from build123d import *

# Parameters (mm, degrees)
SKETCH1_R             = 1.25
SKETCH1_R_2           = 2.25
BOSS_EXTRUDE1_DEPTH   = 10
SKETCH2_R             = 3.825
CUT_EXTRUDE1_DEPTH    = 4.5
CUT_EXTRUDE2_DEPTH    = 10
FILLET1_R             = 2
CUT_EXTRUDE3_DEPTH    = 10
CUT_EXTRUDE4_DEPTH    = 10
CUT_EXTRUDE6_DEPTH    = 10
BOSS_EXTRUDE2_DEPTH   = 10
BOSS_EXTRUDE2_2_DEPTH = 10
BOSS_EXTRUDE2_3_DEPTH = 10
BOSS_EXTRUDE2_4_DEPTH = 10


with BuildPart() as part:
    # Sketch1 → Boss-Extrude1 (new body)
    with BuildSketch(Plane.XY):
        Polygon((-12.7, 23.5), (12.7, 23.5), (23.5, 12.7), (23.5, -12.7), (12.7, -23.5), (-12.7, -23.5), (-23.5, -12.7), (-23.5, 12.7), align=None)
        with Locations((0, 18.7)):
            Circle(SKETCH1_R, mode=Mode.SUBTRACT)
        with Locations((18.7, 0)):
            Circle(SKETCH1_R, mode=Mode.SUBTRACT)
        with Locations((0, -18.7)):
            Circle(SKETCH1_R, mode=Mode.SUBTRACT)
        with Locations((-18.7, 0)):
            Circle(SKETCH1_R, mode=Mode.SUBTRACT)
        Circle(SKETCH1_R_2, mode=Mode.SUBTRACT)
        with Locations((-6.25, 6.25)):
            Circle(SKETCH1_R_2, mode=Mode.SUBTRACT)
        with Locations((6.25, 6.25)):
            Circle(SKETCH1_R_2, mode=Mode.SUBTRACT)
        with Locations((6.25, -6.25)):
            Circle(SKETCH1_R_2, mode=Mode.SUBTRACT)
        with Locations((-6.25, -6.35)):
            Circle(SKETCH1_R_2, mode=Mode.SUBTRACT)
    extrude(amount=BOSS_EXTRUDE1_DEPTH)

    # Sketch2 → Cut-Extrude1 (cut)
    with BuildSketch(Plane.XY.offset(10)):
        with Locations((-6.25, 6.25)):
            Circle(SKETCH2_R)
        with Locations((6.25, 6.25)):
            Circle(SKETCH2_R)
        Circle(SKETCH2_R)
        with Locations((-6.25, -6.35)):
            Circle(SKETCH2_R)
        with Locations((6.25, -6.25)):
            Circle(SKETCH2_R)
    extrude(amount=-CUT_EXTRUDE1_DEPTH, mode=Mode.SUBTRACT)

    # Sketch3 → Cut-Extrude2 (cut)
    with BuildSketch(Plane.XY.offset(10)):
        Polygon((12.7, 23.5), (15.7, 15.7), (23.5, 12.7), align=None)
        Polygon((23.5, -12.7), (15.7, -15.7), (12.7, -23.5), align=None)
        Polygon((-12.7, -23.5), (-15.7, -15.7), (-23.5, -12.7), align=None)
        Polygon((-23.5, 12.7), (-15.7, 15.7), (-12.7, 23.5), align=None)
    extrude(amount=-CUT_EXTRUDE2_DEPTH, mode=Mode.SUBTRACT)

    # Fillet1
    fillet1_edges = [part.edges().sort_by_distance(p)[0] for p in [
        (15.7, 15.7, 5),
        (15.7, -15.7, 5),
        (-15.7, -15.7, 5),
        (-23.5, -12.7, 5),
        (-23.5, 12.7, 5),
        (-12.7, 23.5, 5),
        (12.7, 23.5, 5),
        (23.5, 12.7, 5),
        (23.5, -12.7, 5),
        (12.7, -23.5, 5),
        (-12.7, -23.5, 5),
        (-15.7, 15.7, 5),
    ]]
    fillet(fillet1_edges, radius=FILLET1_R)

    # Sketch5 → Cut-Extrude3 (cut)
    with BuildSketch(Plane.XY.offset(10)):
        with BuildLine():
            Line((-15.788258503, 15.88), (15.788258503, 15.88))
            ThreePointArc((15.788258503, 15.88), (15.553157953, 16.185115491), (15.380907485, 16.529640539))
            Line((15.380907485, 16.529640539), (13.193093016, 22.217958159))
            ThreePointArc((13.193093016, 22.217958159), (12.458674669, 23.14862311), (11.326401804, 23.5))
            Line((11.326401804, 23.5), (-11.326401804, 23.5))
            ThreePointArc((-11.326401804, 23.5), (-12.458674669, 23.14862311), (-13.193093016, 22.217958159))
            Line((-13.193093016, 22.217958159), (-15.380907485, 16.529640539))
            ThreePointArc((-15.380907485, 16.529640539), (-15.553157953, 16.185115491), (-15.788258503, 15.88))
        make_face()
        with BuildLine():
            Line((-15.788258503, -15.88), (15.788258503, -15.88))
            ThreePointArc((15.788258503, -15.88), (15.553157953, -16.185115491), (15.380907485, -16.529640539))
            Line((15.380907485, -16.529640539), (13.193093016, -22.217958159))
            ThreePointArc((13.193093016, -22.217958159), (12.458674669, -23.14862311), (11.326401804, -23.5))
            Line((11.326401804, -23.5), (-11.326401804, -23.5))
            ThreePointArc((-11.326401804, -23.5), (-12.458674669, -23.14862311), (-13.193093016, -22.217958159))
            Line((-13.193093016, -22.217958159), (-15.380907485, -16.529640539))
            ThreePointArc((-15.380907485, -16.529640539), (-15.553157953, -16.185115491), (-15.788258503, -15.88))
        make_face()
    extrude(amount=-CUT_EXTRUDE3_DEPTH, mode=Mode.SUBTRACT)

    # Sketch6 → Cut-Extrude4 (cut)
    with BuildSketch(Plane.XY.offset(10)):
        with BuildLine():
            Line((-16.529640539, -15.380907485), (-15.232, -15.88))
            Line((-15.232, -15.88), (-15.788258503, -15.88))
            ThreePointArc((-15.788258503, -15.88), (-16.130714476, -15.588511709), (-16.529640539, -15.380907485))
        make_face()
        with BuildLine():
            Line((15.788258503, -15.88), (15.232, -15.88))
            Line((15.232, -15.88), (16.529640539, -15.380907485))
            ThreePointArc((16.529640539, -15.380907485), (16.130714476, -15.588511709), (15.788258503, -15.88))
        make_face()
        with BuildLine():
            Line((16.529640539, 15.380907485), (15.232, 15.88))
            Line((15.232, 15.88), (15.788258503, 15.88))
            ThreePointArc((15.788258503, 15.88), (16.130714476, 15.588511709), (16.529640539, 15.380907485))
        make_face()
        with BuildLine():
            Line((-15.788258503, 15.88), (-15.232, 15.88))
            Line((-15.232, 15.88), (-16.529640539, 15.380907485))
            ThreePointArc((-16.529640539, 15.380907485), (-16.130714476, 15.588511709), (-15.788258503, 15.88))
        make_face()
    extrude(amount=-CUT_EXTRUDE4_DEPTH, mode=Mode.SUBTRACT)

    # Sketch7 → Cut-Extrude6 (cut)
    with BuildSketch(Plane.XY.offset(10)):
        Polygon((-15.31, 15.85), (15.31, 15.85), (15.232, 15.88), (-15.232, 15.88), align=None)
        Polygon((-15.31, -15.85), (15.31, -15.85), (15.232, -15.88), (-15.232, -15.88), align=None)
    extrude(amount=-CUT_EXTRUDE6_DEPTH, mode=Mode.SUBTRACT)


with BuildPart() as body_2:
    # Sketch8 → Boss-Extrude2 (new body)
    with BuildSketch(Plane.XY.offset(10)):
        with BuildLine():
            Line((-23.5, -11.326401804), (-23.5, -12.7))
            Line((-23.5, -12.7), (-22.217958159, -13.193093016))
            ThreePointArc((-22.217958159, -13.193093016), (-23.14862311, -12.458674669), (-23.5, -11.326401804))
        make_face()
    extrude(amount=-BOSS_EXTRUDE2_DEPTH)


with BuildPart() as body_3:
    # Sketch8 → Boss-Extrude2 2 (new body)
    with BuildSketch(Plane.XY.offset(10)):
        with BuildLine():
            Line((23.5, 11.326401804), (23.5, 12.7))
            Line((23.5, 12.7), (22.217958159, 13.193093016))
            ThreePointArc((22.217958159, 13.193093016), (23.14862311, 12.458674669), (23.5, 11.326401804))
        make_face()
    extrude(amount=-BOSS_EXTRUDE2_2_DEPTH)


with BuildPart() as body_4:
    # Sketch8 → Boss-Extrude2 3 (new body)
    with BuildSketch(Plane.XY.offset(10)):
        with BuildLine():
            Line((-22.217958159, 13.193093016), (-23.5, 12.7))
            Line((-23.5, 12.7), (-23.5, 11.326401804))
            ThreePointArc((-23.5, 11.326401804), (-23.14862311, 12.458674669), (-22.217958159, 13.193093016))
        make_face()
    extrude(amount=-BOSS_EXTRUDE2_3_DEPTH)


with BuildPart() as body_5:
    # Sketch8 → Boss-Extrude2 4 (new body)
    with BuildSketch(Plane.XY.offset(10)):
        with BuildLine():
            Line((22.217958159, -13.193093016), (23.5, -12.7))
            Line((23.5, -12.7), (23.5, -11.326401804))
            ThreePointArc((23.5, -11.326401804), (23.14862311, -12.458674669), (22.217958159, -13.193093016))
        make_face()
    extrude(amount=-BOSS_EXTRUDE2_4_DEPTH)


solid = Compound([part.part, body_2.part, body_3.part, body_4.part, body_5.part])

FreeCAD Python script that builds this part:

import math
import FreeCAD as App
import Part
import Sketcher
from FreeCAD import Vector
Q = App.Units.Quantity


def edges_at(feature, points):
    """Names of the edges that pass closest to the given points."""
    edges = feature.Shape.Edges
    near = lambda p: min(range(len(edges)), key=lambda i: edges[i].distToShape(Part.Vertex(*p))[0])
    return sorted({f"Edge{near(p) + 1}" for p in points})


def add_polygon(sketch, points):
    """Adds a closed chain of lines whose ends are joined by coincident constraints."""
    first, n = sketch.GeometryCount, len(points)
    for a, b in zip(points, points[1:] + points[:1]):
        sketch.addGeometry(Part.LineSegment(App.Vector(*a, 0), App.Vector(*b, 0)), False)
    for i in range(n):
        sketch.addConstraint(Sketcher.Constraint("Coincident", first + i, 2, first + (i + 1) % n, 1))

doc = App.newDocument("Part")
body = doc.addObject("PartDesign::Body", "Body")

# Sketch on XY plane
sketch1 = body.newObject("Sketcher::SketchObject", "Sketch")
sketch1.AttachmentSupport = (doc.getObject("XY_Plane"), [""])
sketch1.MapMode = "FlatFace"
add_polygon(sketch1, [(12.7, 23.5), (-12.7, 23.5), (-23.5, 12.7), (-23.5, -12.7), (-12.7, -23.5), (12.7, -23.5), (23.5, -12.7), (23.5, 12.7)])  # lines 0-7
sketch1.addGeometry(Part.Circle(Vector(6.2, -6.2, 0), Vector(0, 0, 1), 2.2), False)  # 8
sketch1.addGeometry(Part.Circle(Vector(0, -18.7, 0), Vector(0, 0, 1), 1.2), False)  # 9
sketch1.addGeometry(Part.Circle(Vector(-6.2, -6.3, 0), Vector(0, 0, 1), 2.2), False)  # 10
sketch1.addGeometry(Part.Circle(Vector(18.7, 0, 0), Vector(0, 0, 1), 1.2), False)  # 11
sketch1.addGeometry(Part.Circle(Vector(6.2, 6.2, 0), Vector(0, 0, 1), 2.2), False)  # 12
sketch1.addGeometry(Part.Circle(Vector(0, 0, 0), Vector(0, 0, 1), 2.2), False)  # 13
sketch1.addGeometry(Part.Circle(Vector(-6.2, 6.2, 0), Vector(0, 0, 1), 2.2), False)  # 14
sketch1.addGeometry(Part.Circle(Vector(-18.7, 0, 0), Vector(0, 0, 1), 1.2), False)  # 15
sketch1.addGeometry(Part.Circle(Vector(0, 18.7, 0), Vector(0, 0, 1), 1.2), False)  # 16
sketch1.addConstraint(Sketcher.Constraint("Horizontal", 0))
sketch1.addConstraint(Sketcher.Constraint("Vertical", 2))
sketch1.addConstraint(Sketcher.Constraint("Horizontal", 4))
sketch1.addConstraint(Sketcher.Constraint("Vertical", 6))
sketch1.addConstraint(Sketcher.Constraint("Coincident", 13, 3, -1, 1))
sketch1.addConstraint(Sketcher.Constraint("Equal", 8, 10))
sketch1.addConstraint(Sketcher.Constraint("Equal", 9, 11))
sketch1.addConstraint(Sketcher.Constraint("Equal", 10, 12))
sketch1.addConstraint(Sketcher.Constraint("Equal", 12, 13))
sketch1.addConstraint(Sketcher.Constraint("Equal", 13, 14))
sketch1.addConstraint(Sketcher.Constraint("Equal", 11, 15))
sketch1.addConstraint(Sketcher.Constraint("Equal", 15, 16))
sketch1.addConstraint(Sketcher.Constraint("Symmetric", 8, 3, 14, 3, -1, 1))
sketch1.addConstraint(Sketcher.Constraint("Symmetric", 11, 3, 15, 3, -1, 1))
sketch1.addConstraint(Sketcher.Constraint("Symmetric", 9, 3, 16, 3, -1, 1))
sketch1.addConstraint(Sketcher.Constraint("Symmetric", 0, 2, 4, 2, -1, 1))
sketch1.addConstraint(Sketcher.Constraint("Symmetric", 1, 2, 5, 2, -1, 1))
sketch1.addConstraint(Sketcher.Constraint("Symmetric", 12, 3, 14, 3, -2))
sketch1.addConstraint(Sketcher.Constraint("PointOnObject", 9, 3, -2))
sketch1.addConstraint(Sketcher.Constraint("PointOnObject", 11, 3, -1))
sketch1.addConstraint(Sketcher.Constraint("Perpendicular", 1, 3))
sketch1.addConstraint(Sketcher.Constraint("Perpendicular", 5, 7))
sketch1.addConstraint(Sketcher.Constraint("Horizontal", 2, 2, 5, 2))
sketch1.addConstraint(Sketcher.Constraint("Horizontal", 1, 2, 6, 2))
sketch1.addConstraint(Sketcher.Constraint("Vertical", 10, 3, 14, 3))
sketch1.addConstraint(Sketcher.Constraint("Vertical", 0, 2, 3, 2))
sketch1.addConstraint(Sketcher.Constraint("Equal", 4, 2))
sketch1.addConstraint(Sketcher.Constraint("Diameter", 8, Q("4.5 mm")))
sketch1.addConstraint(Sketcher.Constraint("Diameter", 9, Q("2.5 mm")))
sketch1.addConstraint(Sketcher.Constraint("DistanceX", 0, 2, 0, 1, Q("25.4 mm")))
sketch1.addConstraint(Sketcher.Constraint("DistanceX", 15, 3, 0, 2, Q("6 mm")))
sketch1.addConstraint(Sketcher.Constraint("DistanceY", 1, 2, 16, 3, Q("6 mm")))
sketch1.addConstraint(Sketcher.Constraint("DistanceY", -1, 1, 0, 2, Q("23.5 mm")))
sketch1.addConstraint(Sketcher.Constraint("DistanceX", 10, 3, 8, 3, Q("12.5 mm")))
sketch1.addConstraint(Sketcher.Constraint("DistanceY", 10, 3, 8, 3, Q("0.1 mm")))
sketch1.addConstraint(Sketcher.Constraint("DistanceY", 8, 3, 12, 3, Q("12.5 mm")))
pad1 = body.newObject("PartDesign::Pad", "Pad")
pad1.Profile = sketch1
pad1.Length = 10

# Sketch on XY plane
sketch2 = body.newObject("Sketcher::SketchObject", "Sketch001")
sketch2.AttachmentSupport = (doc.getObject("XY_Plane"), [""])
sketch2.MapMode = "FlatFace"
sketch2.AttachmentOffset = App.Placement(Vector(0, 0, 10), App.Rotation())
sketch2.addGeometry(Part.Circle(Vector(-6.2, 6.2, 0), Vector(0, 0, 1), 3.8), False)
sketch2.addGeometry(Part.Circle(Vector(6.2, 6.2, 0), Vector(0, 0, 1), 3.8), False)
sketch2.addGeometry(Part.Circle(Vector(0, 0, 0), Vector(0, 0, 1), 3.8), False)
sketch2.addGeometry(Part.Circle(Vector(-6.2, -6.3, 0), Vector(0, 0, 1), 3.8), False)
sketch2.addGeometry(Part.Circle(Vector(6.2, -6.2, 0), Vector(0, 0, 1), 3.8), False)
sketch2.addConstraint(Sketcher.Constraint("Coincident", 2, 3, -1, 1))
sketch2.addConstraint(Sketcher.Constraint("Equal", 0, 1))
sketch2.addConstraint(Sketcher.Constraint("Equal", 1, 2))
sketch2.addConstraint(Sketcher.Constraint("Equal", 2, 3))
sketch2.addConstraint(Sketcher.Constraint("Equal", 3, 4))
sketch2.addConstraint(Sketcher.Constraint("Symmetric", 0, 3, 4, 3, -1, 1))
sketch2.addConstraint(Sketcher.Constraint("Symmetric", 0, 3, 1, 3, -2))
sketch2.addConstraint(Sketcher.Constraint("Vertical", 0, 3, 3, 3))
sketch2.addConstraint(Sketcher.Constraint("Diameter", 0, Q("7.65 mm")))
sketch2.addConstraint(Sketcher.Constraint("DistanceX", 0, 3, 1, 3, Q("12.5 mm")))
sketch2.addConstraint(Sketcher.Constraint("DistanceY", 3, 3, 0, 3, Q("12.6 mm")))
sketch2.addConstraint(Sketcher.Constraint("DistanceY", 4, 3, 1, 3, Q("12.5 mm")))
pocket1 = body.newObject("PartDesign::Pocket", "Pocket")
pocket1.Profile = sketch2
pocket1.Length = 4.5

# Sketch on XY plane
sketch3 = body.newObject("Sketcher::SketchObject", "Sketch002")
sketch3.AttachmentSupport = (doc.getObject("XY_Plane"), [""])
sketch3.MapMode = "FlatFace"
sketch3.AttachmentOffset = App.Placement(Vector(0, 0, 10), App.Rotation())
add_polygon(sketch3, [(13, 24), (16, 16), (24, 13)])  # lines 0-2
add_polygon(sketch3, [(24, -13), (16, -16), (13, -24)])  # lines 3-5
add_polygon(sketch3, [(-13, -24), (-16, -16), (-24, -13)])  # lines 6-8
add_polygon(sketch3, [(-24, 13), (-16, 16), (-13, 24)])  # lines 9-11
sketch3.addConstraint(Sketcher.Constraint("Symmetric", 0, 2, 6, 2, -1, 1))
sketch3.addConstraint(Sketcher.Constraint("Symmetric", 1, 2, 7, 2, -1, 1))
sketch3.addConstraint(Sketcher.Constraint("Symmetric", 2, 2, 8, 2, -1, 1))
sketch3.addConstraint(Sketcher.Constraint("Symmetric", 3, 2, 9, 2, -1, 1))
sketch3.addConstraint(Sketcher.Constraint("Symmetric", 4, 2, 10, 2, -1, 1))
sketch3.addConstraint(Sketcher.Constraint("Symmetric", 5, 2, 11, 2, -1, 1))
sketch3.addConstraint(Sketcher.Constraint("Symmetric", 3, 2, 6, 2, -2))
sketch3.addConstraint(Sketcher.Constraint("Symmetric", 5, 2, 7, 2, -2))
sketch3.addConstraint(Sketcher.Constraint("Symmetric", 4, 2, 8, 2, -2))
sketch3.addConstraint(Sketcher.Constraint("Perpendicular", 0, 3))
sketch3.addConstraint(Sketcher.Constraint("Perpendicular", 2, 5))
sketch3.addConstraint(Sketcher.Constraint("DistanceY", 1, 2, 0, 2, Q("3 mm")))
sketch3.addConstraint(Sketcher.Constraint("DistanceY", 4, 2, 2, 2, Q("47 mm")))
sketch3.addConstraint(Sketcher.Constraint("DistanceX", 7, 2, 5, 2, Q("47 mm")))
sketch3.addConstraint(Sketcher.Constraint("DistanceX", -1, 1, 0, 2, Q("15.7 mm")))
pocket2 = body.newObject("PartDesign::Pocket", "Pocket001")
pocket2.Profile = sketch3
pocket2.Length = 10
doc.recompute()

fillet = body.newObject("PartDesign::Fillet", "Fillet")
fillet.Base = (pocket2, edges_at(pocket2, [
    (15.7, 15.7, 5),
    (15.7, -15.7, 5),
    (-15.7, -15.7, 5),
    (-23.5, -12.7, 5),
    (-23.5, 12.7, 5),
    (-12.7, 23.5, 5),
    (12.7, 23.5, 5),
    (23.5, 12.7, 5),
    (23.5, -12.7, 5),
    (12.7, -23.5, 5),
    (-12.7, -23.5, 5),
    (-15.7, 15.7, 5),
]))
fillet.Radius = 2

# Sketch on XY plane
sketch4 = body.newObject("Sketcher::SketchObject", "Sketch003")
sketch4.AttachmentSupport = (doc.getObject("XY_Plane"), [""])
sketch4.MapMode = "FlatFace"
sketch4.AttachmentOffset = App.Placement(Vector(0, 0, 10), App.Rotation())
sketch4.addGeometry(Part.LineSegment(Vector(-15.8, 15.9, 0), Vector(15.8, 15.9, 0)), False)
sketch4.addGeometry(Part.ArcOfCircle(Part.Circle(Vector(17.2, 17.2, 0), Vector(0, 0, 1), 2), math.radians(-159), math.radians(-137)), False)
sketch4.addGeometry(Part.LineSegment(Vector(15.4, 16.5, 0), Vector(13.2, 22.2, 0)), False)
sketch4.addGeometry(Part.ArcOfCircle(Part.Circle(Vector(11.3, 21.5, 0), Vector(0, 0, 1), 2), math.radians(21), math.radians(90)), False)
sketch4.addGeometry(Part.LineSegment(Vector(11.3, 23.5, 0), Vector(-11.3, 23.5, 0)), False)
sketch4.addGeometry(Part.ArcOfCircle(Part.Circle(Vector(-11.3, 21.5, 0), Vector(0, 0, 1), 2), math.radians(90), math.radians(159)), False)
sketch4.addGeometry(Part.LineSegment(Vector(-13.2, 22.2, 0), Vector(-15.4, 16.5, 0)), False)
sketch4.addGeometry(Part.ArcOfCircle(Part.Circle(Vector(-17.2, 17.2, 0), Vector(0, 0, 1), 2), math.radians(-43), math.radians(-21)), False)
sketch4.addGeometry(Part.LineSegment(Vector(15.8, -15.9, 0), Vector(-15.8, -15.9, 0)), False)
sketch4.addGeometry(Part.ArcOfCircle(Part.Circle(Vector(-17.2, -17.2, 0), Vector(0, 0, 1), 2), math.radians(21), math.radians(43)), False)
sketch4.addGeometry(Part.LineSegment(Vector(-15.4, -16.5, 0), Vector(-13.2, -22.2, 0)), False)
sketch4.addGeometry(Part.ArcOfCircle(Part.Circle(Vector(-11.3, -21.5, 0), Vector(0, 0, 1), 2), math.radians(-159), math.radians(-90)), False)
sketch4.addGeometry(Part.LineSegment(Vector(-11.3, -23.5, 0), Vector(11.3, -23.5, 0)), False)
sketch4.addGeometry(Part.ArcOfCircle(Part.Circle(Vector(11.3, -21.5, 0), Vector(0, 0, 1), 2), math.radians(-90), math.radians(-21)), False)
sketch4.addGeometry(Part.LineSegment(Vector(13.2, -22.2, 0), Vector(15.4, -16.5, 0)), False)
sketch4.addGeometry(Part.ArcOfCircle(Part.Circle(Vector(17.2, -17.2, 0), Vector(0, 0, 1), 2), math.radians(137), math.radians(159)), False)
sketch4.addConstraint(Sketcher.Constraint("Coincident", 0, 2, 1, 2))
sketch4.addConstraint(Sketcher.Constraint("Tangent", 1, 1, 2, 1))
sketch4.addConstraint(Sketcher.Constraint("Tangent", 2, 2, 3, 1))
sketch4.addConstraint(Sketcher.Constraint("Tangent", 3, 2, 4, 1))
sketch4.addConstraint(Sketcher.Constraint("Tangent", 4, 2, 5, 1))
sketch4.addConstraint(Sketcher.Constraint("Tangent", 5, 2, 6, 1))
sketch4.addConstraint(Sketcher.Constraint("Tangent", 6, 2, 7, 2))
sketch4.addConstraint(Sketcher.Constraint("Coincident", 7, 1, 0, 1))
sketch4.addConstraint(Sketcher.Constraint("Coincident", 8, 2, 9, 2))
sketch4.addConstraint(Sketcher.Constraint("Tangent", 9, 1, 10, 1))
sketch4.addConstraint(Sketcher.Constraint("Tangent", 10, 2, 11, 1))
sketch4.addConstraint(Sketcher.Constraint("Tangent", 11, 2, 12, 1))
sketch4.addConstraint(Sketcher.Constraint("Tangent", 12, 2, 13, 1))
sketch4.addConstraint(Sketcher.Constraint("Tangent", 13, 2, 14, 1))
sketch4.addConstraint(Sketcher.Constraint("Tangent", 14, 2, 15, 2))
sketch4.addConstraint(Sketcher.Constraint("Coincident", 15, 1, 8, 1))
sketch4.addConstraint(Sketcher.Constraint("Horizontal", 0))
sketch4.addConstraint(Sketcher.Constraint("Horizontal", 4))
sketch4.addConstraint(Sketcher.Constraint("Horizontal", 8))
sketch4.addConstraint(Sketcher.Constraint("Horizontal", 12))
sketch4.addConstraint(Sketcher.Constraint("Equal", 1, 3))
sketch4.addConstraint(Sketcher.Constraint("Equal", 3, 5))
sketch4.addConstraint(Sketcher.Constraint("Equal", 5, 7))
sketch4.addConstraint(Sketcher.Constraint("Equal", 7, 9))
sketch4.addConstraint(Sketcher.Constraint("Equal", 9, 11))
sketch4.addConstraint(Sketcher.Constraint("Equal", 11, 13))
sketch4.addConstraint(Sketcher.Constraint("Equal", 13, 15))
sketch4.addConstraint(Sketcher.Constraint("Symmetric", 1, 3, 9, 3, -1, 1))
sketch4.addConstraint(Sketcher.Constraint("Symmetric", 3, 3, 11, 3, -1, 1))
sketch4.addConstraint(Sketcher.Constraint("Symmetric", 7, 3, 15, 3, -1, 1))
sketch4.addConstraint(Sketcher.Constraint("Symmetric", 1, 3, 7, 3, -2))
sketch4.addConstraint(Sketcher.Constraint("Parallel", 6, 14))
sketch4.addConstraint(Sketcher.Constraint("Horizontal", 2, 2, 5, 2))
sketch4.addConstraint(Sketcher.Constraint("Vertical", 7, 1, 8, 2))
sketch4.addConstraint(Sketcher.Constraint("Radius", 1, Q("2 mm")))
sketch4.addConstraint(Sketcher.Constraint("DistanceY", 11, 3, 5, 3, Q("43 mm")))
sketch4.addConstraint(Sketcher.Constraint("DistanceY", -1, 1, 0, 2, Q("15.88 mm")))
sketch4.addConstraint(Sketcher.Constraint("DistanceX", 5, 3, 1, 3, Q("28.574 mm")))
sketch4.addConstraint(Sketcher.Constraint("DistanceX", -1, 1, 1, 3, Q("17.247599 mm")))
sketch4.addConstraint(Sketcher.Constraint("DistanceY", -1, 1, 1, 3, Q("17.247599 mm")))
pocket3 = body.newObject("PartDesign::Pocket", "Pocket002")
pocket3.Profile = sketch4
pocket3.Length = 10

# Sketch on XY plane
sketch5 = body.newObject("Sketcher::SketchObject", "Sketch004")
sketch5.AttachmentSupport = (doc.getObject("XY_Plane"), [""])
sketch5.MapMode = "FlatFace"
sketch5.AttachmentOffset = App.Placement(Vector(0, 0, 10), App.Rotation())
sketch5.addGeometry(Part.LineSegment(Vector(-15.2, -15.9, 0), Vector(-16.5, -15.4, 0)), False)
sketch5.addGeometry(Part.ArcOfCircle(Part.Circle(Vector(-17.2, -17.2, 0), Vector(0, 0, 1), 2), math.radians(43), math.radians(69)), False)
sketch5.addGeometry(Part.LineSegment(Vector(-15.8, -15.9, 0), Vector(-15.2, -15.9, 0)), False)
sketch5.addGeometry(Part.LineSegment(Vector(15.2, -15.9, 0), Vector(15.8, -15.9, 0)), False)
sketch5.addGeometry(Part.ArcOfCircle(Part.Circle(Vector(17.2, -17.2, 0), Vector(0, 0, 1), 2), math.radians(111), math.radians(137)), False)
sketch5.addGeometry(Part.LineSegment(Vector(16.5, -15.4, 0), Vector(15.2, -15.9, 0)), False)
sketch5.addGeometry(Part.LineSegment(Vector(15.2, 15.9, 0), Vector(16.5, 15.4, 0)), False)
sketch5.addGeometry(Part.ArcOfCircle(Part.Circle(Vector(17.2, 17.2, 0), Vector(0, 0, 1), 2), math.radians(-137), math.radians(-111)), False)
sketch5.addGeometry(Part.LineSegment(Vector(15.8, 15.9, 0), Vector(15.2, 15.9, 0)), False)
sketch5.addGeometry(Part.LineSegment(Vector(-15.2, 15.9, 0), Vector(-15.8, 15.9, 0)), False)
sketch5.addGeometry(Part.ArcOfCircle(Part.Circle(Vector(-17.2, 17.2, 0), Vector(0, 0, 1), 2), math.radians(-69), math.radians(-43)), False)
sketch5.addGeometry(Part.LineSegment(Vector(-16.5, 15.4, 0), Vector(-15.2, 15.9, 0)), False)
sketch5.addConstraint(Sketcher.Constraint("Tangent", 0, 2, 1, 2))
sketch5.addConstraint(Sketcher.Constraint("Coincident", 1, 1, 2, 1))
sketch5.addConstraint(Sketcher.Constraint("Coincident", 2, 2, 0, 1))
sketch5.addConstraint(Sketcher.Constraint("Coincident", 3, 2, 4, 2))
sketch5.addConstraint(Sketcher.Constraint("Tangent", 4, 1, 5, 1))
sketch5.addConstraint(Sketcher.Constraint("Coincident", 5, 2, 3, 1))
sketch5.addConstraint(Sketcher.Constraint("Tangent", 6, 2, 7, 2))
sketch5.addConstraint(Sketcher.Constraint("Coincident", 7, 1, 8, 1))
sketch5.addConstraint(Sketcher.Constraint("Coincident", 8, 2, 6, 1))
sketch5.addConstraint(Sketcher.Constraint("Coincident", 9, 2, 10, 2))
sketch5.addConstraint(Sketcher.Constraint("Tangent", 10, 1, 11, 1))
sketch5.addConstraint(Sketcher.Constraint("Coincident", 11, 2, 9, 1))
sketch5.addConstraint(Sketcher.Constraint("Horizontal", 2))
sketch5.addConstraint(Sketcher.Constraint("Horizontal", 3))
sketch5.addConstraint(Sketcher.Constraint("Horizontal", 8))
sketch5.addConstraint(Sketcher.Constraint("Horizontal", 9))
sketch5.addConstraint(Sketcher.Constraint("Equal", 1, 4))
sketch5.addConstraint(Sketcher.Constraint("Equal", 4, 7))
sketch5.addConstraint(Sketcher.Constraint("Equal", 7, 10))
sketch5.addConstraint(Sketcher.Constraint("Symmetric", 1, 3, 7, 3, -1, 1))
sketch5.addConstraint(Sketcher.Constraint("Symmetric", 4, 3, 10, 3, -1, 1))
sketch5.addConstraint(Sketcher.Constraint("Symmetric", 2, 2, 8, 2, -1, 1))
sketch5.addConstraint(Sketcher.Constraint("Symmetric", 5, 2, 11, 2, -1, 1))
sketch5.addConstraint(Sketcher.Constraint("Symmetric", 1, 3, 4, 3, -2))
sketch5.addConstraint(Sketcher.Constraint("Symmetric", 2, 2, 5, 2, -2))
sketch5.addConstraint(Sketcher.Constraint("Radius", 1, Q("2 mm")))
sketch5.addConstraint(Sketcher.Constraint("DistanceY", 1, 1, -1, 1, Q("15.88 mm")))
sketch5.addConstraint(Sketcher.Constraint("DistanceX", 2, 2, -1, 1, Q("15.232 mm")))
sketch5.addConstraint(Sketcher.Constraint("DistanceX", 2, 1, 2, 2, Q("0.556259 mm")))
sketch5.addConstraint(Sketcher.Constraint("DistanceX", 1, 3, -1, 1, Q("17.247599 mm")))
pocket4 = body.newObject("PartDesign::Pocket", "Pocket003")
pocket4.Profile = sketch5
pocket4.Length = 10

# Sketch on XY plane
sketch6 = body.newObject("Sketcher::SketchObject", "Sketch005")
sketch6.AttachmentSupport = (doc.getObject("XY_Plane"), [""])
sketch6.MapMode = "FlatFace"
sketch6.AttachmentOffset = App.Placement(Vector(0, 0, 10), App.Rotation())
add_polygon(sketch6, [(-15.31, 15.85), (15.31, 15.85), (15.23, 15.88), (-15.23, 15.88)])  # lines 0-3
add_polygon(sketch6, [(15.31, -15.85), (-15.31, -15.85), (-15.23, -15.88), (15.23, -15.88)])  # lines 4-7
sketch6.addConstraint(Sketcher.Constraint("Horizontal", 0))
sketch6.addConstraint(Sketcher.Constraint("Horizontal", 2))
sketch6.addConstraint(Sketcher.Constraint("Horizontal", 4))
sketch6.addConstraint(Sketcher.Constraint("Horizontal", 6))
sketch6.addConstraint(Sketcher.Constraint("Symmetric", 0, 2, 4, 2, -1, 1))
sketch6.addConstraint(Sketcher.Constraint("Symmetric", 1, 2, 5, 2, -1, 1))
sketch6.addConstraint(Sketcher.Constraint("Parallel", 3, 7))
sketch6.addConstraint(Sketcher.Constraint("Vertical", 3, 2, 4, 2))
sketch6.addConstraint(Sketcher.Constraint("Vertical", 2, 2, 5, 2))
sketch6.addConstraint(Sketcher.Constraint("Vertical", 1, 2, 6, 2))
sketch6.addConstraint(Sketcher.Constraint("DistanceX", 0, 1, 0, 2, Q("30.62 mm")))
sketch6.addConstraint(Sketcher.Constraint("DistanceY", 4, 2, 3, 2, Q("31.7 mm")))
sketch6.addConstraint(Sketcher.Constraint("DistanceX", 2, 2, 2, 1, Q("30.464 mm")))
sketch6.addConstraint(Sketcher.Constraint("DistanceY", -1, 1, 1, 2, Q("15.88 mm")))
pocket5 = body.newObject("PartDesign::Pocket", "Pocket004")
pocket5.Profile = sketch6
pocket5.Length = 10
body2 = doc.addObject("PartDesign::Body", "Body001")

# Sketch on XY plane
sketch7 = body2.newObject("Sketcher::SketchObject", "Sketch006")
sketch7.AttachmentSupport = (doc.getObject("XY_Plane001"), [""])
sketch7.MapMode = "FlatFace"
sketch7.AttachmentOffset = App.Placement(Vector(0, 0, 10), App.Rotation())
sketch7.addGeometry(Part.LineSegment(Vector(-23.5, -11.3, 0), Vector(-23.5, -12.7, 0)), False)
sketch7.addGeometry(Part.LineSegment(Vector(-23.5, -12.7, 0), Vector(-22.2, -13.2, 0)), False)
sketch7.addGeometry(Part.ArcOfCircle(Part.Circle(Vector(-21.5, -11.3, 0), Vector(0, 0, 1), 2), math.radians(180), math.radians(249)), False)
sketch7.addConstraint(Sketcher.Constraint("Coincident", 0, 2, 1, 1))
sketch7.addConstraint(Sketcher.Constraint("Tangent", 1, 2, 2, 2))
sketch7.addConstraint(Sketcher.Constraint("Tangent", 2, 1, 0, 1))
sketch7.addConstraint(Sketcher.Constraint("Vertical", 0))
sketch7.addConstraint(Sketcher.Constraint("Radius", 2, Q("2 mm")))
sketch7.addConstraint(Sketcher.Constraint("DistanceX", 2, 3, -1, 1, Q("21.5 mm")))
sketch7.addConstraint(Sketcher.Constraint("DistanceY", 0, 2, -1, 1, Q("12.7 mm")))
sketch7.addConstraint(Sketcher.Constraint("DistanceY", 0, 2, 0, 1, Q("1.373598 mm")))
pad2 = body2.newObject("PartDesign::Pad", "Pad001")
pad2.Profile = sketch7
pad2.Length = 10
pad2.Reversed = True
body3 = doc.addObject("PartDesign::Body", "Body002")

# Sketch on XY plane
sketch8 = body3.newObject("Sketcher::SketchObject", "Sketch007")
sketch8.AttachmentSupport = (doc.getObject("XY_Plane002"), [""])
sketch8.MapMode = "FlatFace"
sketch8.AttachmentOffset = App.Placement(Vector(0, 0, 10), App.Rotation())
sketch8.addGeometry(Part.LineSegment(Vector(23.5, 11.3, 0), Vector(23.5, 12.7, 0)), False)
sketch8.addGeometry(Part.LineSegment(Vector(23.5, 12.7, 0), Vector(22.2, 13.2, 0)), False)
sketch8.addGeometry(Part.ArcOfCircle(Part.Circle(Vector(21.5, 11.3, 0), Vector(0, 0, 1), 2), math.radians(0), math.radians(69)), False)
sketch8.addConstraint(Sketcher.Constraint("Coincident", 0, 2, 1, 1))
sketch8.addConstraint(Sketcher.Constraint("Tangent", 1, 2, 2, 2))
sketch8.addConstraint(Sketcher.Constraint("Tangent", 2, 1, 0, 1))
sketch8.addConstraint(Sketcher.Constraint("Vertical", 0))
sketch8.addConstraint(Sketcher.Constraint("Radius", 2, Q("2 mm")))
sketch8.addConstraint(Sketcher.Constraint("DistanceX", -1, 1, 2, 3, Q("21.5 mm")))
sketch8.addConstraint(Sketcher.Constraint("DistanceY", -1, 1, 0, 2, Q("12.7 mm")))
sketch8.addConstraint(Sketcher.Constraint("DistanceY", 0, 1, 0, 2, Q("1.373598 mm")))
pad3 = body3.newObject("PartDesign::Pad", "Pad002")
pad3.Profile = sketch8
pad3.Length = 10
pad3.Reversed = True
body4 = doc.addObject("PartDesign::Body", "Body003")

# Sketch on XY plane
sketch9 = body4.newObject("Sketcher::SketchObject", "Sketch008")
sketch9.AttachmentSupport = (doc.getObject("XY_Plane003"), [""])
sketch9.MapMode = "FlatFace"
sketch9.AttachmentOffset = App.Placement(Vector(0, 0, 10), App.Rotation())
sketch9.addGeometry(Part.LineSegment(Vector(-22.2, 13.2, 0), Vector(-23.5, 12.7, 0)), False)
sketch9.addGeometry(Part.LineSegment(Vector(-23.5, 12.7, 0), Vector(-23.5, 11.3, 0)), False)
sketch9.addGeometry(Part.ArcOfCircle(Part.Circle(Vector(-21.5, 11.3, 0), Vector(0, 0, 1), 2), math.radians(111), math.radians(180)), False)
sketch9.addConstraint(Sketcher.Constraint("Coincident", 0, 2, 1, 1))
sketch9.addConstraint(Sketcher.Constraint("Tangent", 1, 2, 2, 2))
sketch9.addConstraint(Sketcher.Constraint("Tangent", 2, 1, 0, 1))
sketch9.addConstraint(Sketcher.Constraint("Vertical", 1))
sketch9.addConstraint(Sketcher.Constraint("Radius", 2, Q("2 mm")))
sketch9.addConstraint(Sketcher.Constraint("DistanceX", 2, 3, -1, 1, Q("21.5 mm")))
sketch9.addConstraint(Sketcher.Constraint("DistanceY", -1, 1, 0, 2, Q("12.7 mm")))
sketch9.addConstraint(Sketcher.Constraint("DistanceY", 1, 2, 1, 1, Q("1.373598 mm")))
pad4 = body4.newObject("PartDesign::Pad", "Pad003")
pad4.Profile = sketch9
pad4.Length = 10
pad4.Reversed = True
body5 = doc.addObject("PartDesign::Body", "Body004")

# Sketch on XY plane
sketch10 = body5.newObject("Sketcher::SketchObject", "Sketch009")
sketch10.AttachmentSupport = (doc.getObject("XY_Plane004"), [""])
sketch10.MapMode = "FlatFace"
sketch10.AttachmentOffset = App.Placement(Vector(0, 0, 10), App.Rotation())
sketch10.addGeometry(Part.LineSegment(Vector(22.2, -13.2, 0), Vector(23.5, -12.7, 0)), False)
sketch10.addGeometry(Part.LineSegment(Vector(23.5, -12.7, 0), Vector(23.5, -11.3, 0)), False)
sketch10.addGeometry(Part.ArcOfCircle(Part.Circle(Vector(21.5, -11.3, 0), Vector(0, 0, 1), 2), math.radians(-69), math.radians(0)), False)
sketch10.addConstraint(Sketcher.Constraint("Coincident", 0, 2, 1, 1))
sketch10.addConstraint(Sketcher.Constraint("Tangent", 1, 2, 2, 2))
sketch10.addConstraint(Sketcher.Constraint("Tangent", 2, 1, 0, 1))
sketch10.addConstraint(Sketcher.Constraint("Vertical", 1))
sketch10.addConstraint(Sketcher.Constraint("Radius", 2, Q("2 mm")))
sketch10.addConstraint(Sketcher.Constraint("DistanceX", -1, 1, 2, 3, Q("21.5 mm")))
sketch10.addConstraint(Sketcher.Constraint("DistanceY", 0, 2, -1, 1, Q("12.7 mm")))
sketch10.addConstraint(Sketcher.Constraint("DistanceY", 1, 1, 1, 2, Q("1.373598 mm")))
pad5 = body5.newObject("PartDesign::Pad", "Pad004")
pad5.Profile = sketch10
pad5.Length = 10
pad5.Reversed = True

doc.recompute()
